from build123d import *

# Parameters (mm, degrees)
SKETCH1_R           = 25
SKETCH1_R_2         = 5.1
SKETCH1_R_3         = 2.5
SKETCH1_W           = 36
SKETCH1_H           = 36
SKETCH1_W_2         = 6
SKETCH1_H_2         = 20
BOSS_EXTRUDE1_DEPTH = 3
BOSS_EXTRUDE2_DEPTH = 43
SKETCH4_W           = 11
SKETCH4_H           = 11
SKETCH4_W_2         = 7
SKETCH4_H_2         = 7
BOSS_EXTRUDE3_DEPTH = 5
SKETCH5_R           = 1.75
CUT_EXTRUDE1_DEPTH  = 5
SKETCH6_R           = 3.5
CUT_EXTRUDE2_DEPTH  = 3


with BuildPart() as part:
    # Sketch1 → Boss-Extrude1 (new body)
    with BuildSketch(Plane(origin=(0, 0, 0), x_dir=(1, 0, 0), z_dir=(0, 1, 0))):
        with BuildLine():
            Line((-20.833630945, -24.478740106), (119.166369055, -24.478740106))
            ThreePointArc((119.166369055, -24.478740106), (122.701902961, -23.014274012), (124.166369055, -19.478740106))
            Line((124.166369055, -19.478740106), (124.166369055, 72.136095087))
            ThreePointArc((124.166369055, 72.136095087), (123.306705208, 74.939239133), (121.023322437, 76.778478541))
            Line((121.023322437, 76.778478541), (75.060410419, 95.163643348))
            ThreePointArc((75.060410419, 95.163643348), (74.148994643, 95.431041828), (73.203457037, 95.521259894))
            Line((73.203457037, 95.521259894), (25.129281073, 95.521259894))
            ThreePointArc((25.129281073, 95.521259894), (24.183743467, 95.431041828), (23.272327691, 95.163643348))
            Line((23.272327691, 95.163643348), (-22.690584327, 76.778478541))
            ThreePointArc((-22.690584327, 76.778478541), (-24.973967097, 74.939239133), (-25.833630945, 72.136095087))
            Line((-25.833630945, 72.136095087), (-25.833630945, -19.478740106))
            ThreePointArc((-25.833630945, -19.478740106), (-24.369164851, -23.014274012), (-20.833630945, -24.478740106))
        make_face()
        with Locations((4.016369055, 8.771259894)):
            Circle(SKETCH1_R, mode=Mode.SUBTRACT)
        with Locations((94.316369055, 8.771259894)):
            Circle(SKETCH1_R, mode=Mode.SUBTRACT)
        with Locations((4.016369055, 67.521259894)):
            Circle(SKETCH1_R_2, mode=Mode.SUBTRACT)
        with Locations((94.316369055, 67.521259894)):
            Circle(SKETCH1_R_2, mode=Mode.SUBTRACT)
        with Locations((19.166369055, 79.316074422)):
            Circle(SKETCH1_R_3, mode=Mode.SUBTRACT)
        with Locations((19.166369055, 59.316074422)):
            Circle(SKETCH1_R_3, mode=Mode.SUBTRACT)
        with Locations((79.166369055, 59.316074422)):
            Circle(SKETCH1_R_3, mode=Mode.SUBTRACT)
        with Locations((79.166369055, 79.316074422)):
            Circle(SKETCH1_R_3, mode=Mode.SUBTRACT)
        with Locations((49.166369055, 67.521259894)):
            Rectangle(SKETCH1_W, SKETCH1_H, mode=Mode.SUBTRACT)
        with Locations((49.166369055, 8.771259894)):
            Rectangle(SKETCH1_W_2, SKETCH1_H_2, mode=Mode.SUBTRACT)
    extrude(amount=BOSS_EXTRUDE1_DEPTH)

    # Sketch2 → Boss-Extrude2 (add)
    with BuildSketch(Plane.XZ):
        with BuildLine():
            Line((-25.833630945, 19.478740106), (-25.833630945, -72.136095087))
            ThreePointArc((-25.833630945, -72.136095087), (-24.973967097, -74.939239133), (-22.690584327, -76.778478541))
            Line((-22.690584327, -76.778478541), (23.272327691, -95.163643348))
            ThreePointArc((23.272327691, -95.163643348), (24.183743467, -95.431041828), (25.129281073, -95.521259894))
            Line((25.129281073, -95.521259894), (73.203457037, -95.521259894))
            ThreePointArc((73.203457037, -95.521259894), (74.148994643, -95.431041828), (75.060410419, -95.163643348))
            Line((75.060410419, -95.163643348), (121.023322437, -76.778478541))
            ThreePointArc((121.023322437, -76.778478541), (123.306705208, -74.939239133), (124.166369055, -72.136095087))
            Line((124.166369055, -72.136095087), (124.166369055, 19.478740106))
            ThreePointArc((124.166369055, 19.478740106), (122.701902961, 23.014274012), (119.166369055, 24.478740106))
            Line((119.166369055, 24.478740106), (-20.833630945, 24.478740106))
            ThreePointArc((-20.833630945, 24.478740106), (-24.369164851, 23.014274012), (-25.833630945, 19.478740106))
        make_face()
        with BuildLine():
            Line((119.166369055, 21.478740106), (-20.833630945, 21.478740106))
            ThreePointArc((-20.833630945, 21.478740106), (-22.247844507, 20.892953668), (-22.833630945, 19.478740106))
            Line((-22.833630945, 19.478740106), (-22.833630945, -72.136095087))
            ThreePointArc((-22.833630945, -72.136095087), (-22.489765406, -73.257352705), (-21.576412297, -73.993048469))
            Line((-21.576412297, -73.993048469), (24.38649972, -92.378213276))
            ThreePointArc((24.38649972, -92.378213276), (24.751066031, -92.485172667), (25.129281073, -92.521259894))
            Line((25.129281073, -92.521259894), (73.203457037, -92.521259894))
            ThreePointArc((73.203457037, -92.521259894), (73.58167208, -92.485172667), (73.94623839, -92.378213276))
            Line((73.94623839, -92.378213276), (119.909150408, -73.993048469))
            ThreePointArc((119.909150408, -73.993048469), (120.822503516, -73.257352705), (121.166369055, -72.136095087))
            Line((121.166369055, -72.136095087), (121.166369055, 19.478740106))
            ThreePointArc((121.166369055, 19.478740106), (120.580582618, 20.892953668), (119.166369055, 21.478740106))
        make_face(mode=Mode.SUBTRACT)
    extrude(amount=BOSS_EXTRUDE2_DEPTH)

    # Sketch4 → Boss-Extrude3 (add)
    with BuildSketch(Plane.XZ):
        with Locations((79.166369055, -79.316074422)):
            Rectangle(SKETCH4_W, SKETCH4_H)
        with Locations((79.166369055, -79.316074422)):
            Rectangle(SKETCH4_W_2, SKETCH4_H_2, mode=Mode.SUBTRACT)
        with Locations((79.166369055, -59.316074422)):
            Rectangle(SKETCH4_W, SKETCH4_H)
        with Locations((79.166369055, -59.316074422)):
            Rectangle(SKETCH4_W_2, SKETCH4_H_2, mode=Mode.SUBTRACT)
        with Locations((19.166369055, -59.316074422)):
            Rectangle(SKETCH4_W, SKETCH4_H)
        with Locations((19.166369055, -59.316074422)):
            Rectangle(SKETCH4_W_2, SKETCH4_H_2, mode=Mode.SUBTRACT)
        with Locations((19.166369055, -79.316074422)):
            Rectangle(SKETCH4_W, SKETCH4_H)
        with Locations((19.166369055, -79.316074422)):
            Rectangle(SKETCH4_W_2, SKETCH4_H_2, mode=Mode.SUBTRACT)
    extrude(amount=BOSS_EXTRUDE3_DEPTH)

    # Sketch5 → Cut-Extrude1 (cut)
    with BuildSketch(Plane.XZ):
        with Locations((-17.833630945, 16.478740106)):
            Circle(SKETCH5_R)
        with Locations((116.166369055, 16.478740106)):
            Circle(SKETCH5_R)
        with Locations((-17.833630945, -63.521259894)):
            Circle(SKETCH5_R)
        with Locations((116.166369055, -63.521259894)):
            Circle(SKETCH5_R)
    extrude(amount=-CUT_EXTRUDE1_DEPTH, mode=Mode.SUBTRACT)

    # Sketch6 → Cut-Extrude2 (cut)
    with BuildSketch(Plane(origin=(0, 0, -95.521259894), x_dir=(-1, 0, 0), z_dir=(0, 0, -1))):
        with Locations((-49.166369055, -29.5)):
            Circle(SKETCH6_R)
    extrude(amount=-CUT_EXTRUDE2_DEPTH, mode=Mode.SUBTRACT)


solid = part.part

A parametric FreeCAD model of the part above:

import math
import FreeCAD as App
import Part
import Sketcher

doc = App.newDocument("Part")
body = doc.addObject("PartDesign::Body", "Body")

# Sketch on XZ plane
sketch1 = doc.addObject("Sketcher::SketchObject", "Sketch")
body.addObject(sketch1)
sketch1.AttachmentSupport = (doc.XZ_Plane, [""])
sketch1.MapMode = "FlatFace"
sketch1.addGeometry([
    Part.LineSegment(App.Vector(-20.8, 24.5, 0), App.Vector(119.2, 24.5, 0)),  # 0
    Part.ArcOfCircle(Part.Circle(App.Vector(119.2, 19.5, 0), App.Vector(0, 0, 1), 5), math.radians(0), math.radians(90)),  # 1
    Part.LineSegment(App.Vector(124.2, 19.5, 0), App.Vector(124.2, -72.1, 0)),  # 2
    Part.ArcOfCircle(Part.Circle(App.Vector(119.2, -72.1, 0), App.Vector(0, 0, 1), 5), math.radians(-68), math.radians(0)),  # 3
    Part.LineSegment(App.Vector(121, -76.8, 0), App.Vector(75.1, -95.2, 0)),  # 4
    Part.ArcOfCircle(Part.Circle(App.Vector(73.2, -90.5, 0), App.Vector(0, 0, 1), 5), math.radians(-90), math.radians(-68)),  # 5
    Part.LineSegment(App.Vector(73.2, -95.5, 0), App.Vector(25.1, -95.5, 0)),  # 6
    Part.ArcOfCircle(Part.Circle(App.Vector(25.1, -90.5, 0), App.Vector(0, 0, 1), 5), math.radians(-112), math.radians(-90)),  # 7
    Part.LineSegment(App.Vector(23.3, -95.2, 0), App.Vector(-22.7, -76.8, 0)),  # 8
    Part.ArcOfCircle(Part.Circle(App.Vector(-20.8, -72.1, 0), App.Vector(0, 0, 1), 5), math.radians(-180), math.radians(-112)),  # 9
    Part.LineSegment(App.Vector(-25.8, -72.1, 0), App.Vector(-25.8, 19.5, 0)),  # 10
    Part.ArcOfCircle(Part.Circle(App.Vector(-20.8, 19.5, 0), App.Vector(0, 0, 1), 5), math.radians(90), math.radians(180)),  # 11
    Part.Circle(App.Vector(4, -8.8, 0), App.Vector(0, 0, 1), 25),  # 12
    Part.LineSegment(App.Vector(52.2, 1.2, 0), App.Vector(46.2, 1.2, 0)),  # 13
    Part.LineSegment(App.Vector(46.2, 1.2, 0), App.Vector(46.2, -18.8, 0)),  # 14
    Part.LineSegment(App.Vector(46.2, -18.8, 0), App.Vector(52.2, -18.8, 0)),  # 15
    Part.LineSegment(App.Vector(52.2, -18.8, 0), App.Vector(52.2, 1.2, 0)),  # 16
    Part.Circle(App.Vector(94.3, -8.8, 0), App.Vector(0, 0, 1), 25),  # 17
    Part.Circle(App.Vector(19.2, -59.3, 0), App.Vector(0, 0, 1), 2.5),  # 18
    Part.Circle(App.Vector(4, -67.5, 0), App.Vector(0, 0, 1), 5.1),  # 19
    Part.Circle(App.Vector(19.2, -79.3, 0), App.Vector(0, 0, 1), 2.5),  # 20
    Part.Circle(App.Vector(79.2, -59.3, 0), App.Vector(0, 0, 1), 2.5),  # 21
    Part.LineSegment(App.Vector(67.2, -49.5, 0), App.Vector(31.2, -49.5, 0)),  # 22
    Part.LineSegment(App.Vector(31.2, -49.5, 0), App.Vector(31.2, -85.5, 0)),  # 23
    Part.LineSegment(App.Vector(31.2, -85.5, 0), App.Vector(67.2, -85.5, 0)),  # 24
    Part.LineSegment(App.Vector(67.2, -85.5, 0), App.Vector(67.2, -49.5, 0)),  # 25
    Part.Circle(App.Vector(79.2, -79.3, 0), App.Vector(0, 0, 1), 2.5),  # 26
    Part.Circle(App.Vector(94.3, -67.5, 0), App.Vector(0, 0, 1), 5.1),  # 27
], False)
sketch1.addConstraint([
    Sketcher.Constraint("Tangent", 0, 2, 1, 2),
    Sketcher.Constraint("Tangent", 1, 1, 2, 1),
    Sketcher.Constraint("Tangent", 2, 2, 3, 2),
    Sketcher.Constraint("Tangent", 3, 1, 4, 1),
    Sketcher.Constraint("Tangent", 4, 2, 5, 2),
    Sketcher.Constraint("Tangent", 5, 1, 6, 1),
    Sketcher.Constraint("Tangent", 6, 2, 7, 2),
    Sketcher.Constraint("Tangent", 7, 1, 8, 1),
    Sketcher.Constraint("Tangent", 8, 2, 9, 2),
    Sketcher.Constraint("Tangent", 9, 1, 10, 1),
    Sketcher.Constraint("Tangent", 10, 2, 11, 2),
    Sketcher.Constraint("Tangent", 11, 1, 0, 1),
    Sketcher.Constraint("Coincident", 13, 2, 14, 1),
    Sketcher.Constraint("Coincident", 14, 2, 15, 1),
    Sketcher.Constraint("Coincident", 15, 2, 16, 1),
    Sketcher.Constraint("Coincident", 16, 2, 13, 1),
    Sketcher.Constraint("Coincident", 22, 2, 23, 1),
    Sketcher.Constraint("Coincident", 23, 2, 24, 1),
    Sketcher.Constraint("Coincident", 24, 2, 25, 1),
    Sketcher.Constraint("Coincident", 25, 2, 22, 1),
    Sketcher.Constraint("Horizontal", 0),
    Sketcher.Constraint("Vertical", 2),
    Sketcher.Constraint("Horizontal", 6),
    Sketcher.Constraint("Vertical", 10),
    Sketcher.Constraint("Horizontal", 13),
    Sketcher.Constraint("Vertical", 14),
    Sketcher.Constraint("Horizontal", 15),
    Sketcher.Constraint("Vertical", 16),
    Sketcher.Constraint("Horizontal", 22),
    Sketcher.Constraint("Vertical", 23),
    Sketcher.Constraint("Horizontal", 24),
    Sketcher.Constraint("Vertical", 25),
    Sketcher.Constraint("Equal", 1, 3),
    Sketcher.Constraint("Equal", 3, 5),
    Sketcher.Constraint("Equal", 5, 7),
    Sketcher.Constraint("Equal", 7, 9),
    Sketcher.Constraint("Equal", 9, 11),
    Sketcher.Constraint("Equal", 12, 17),
    Sketcher.Constraint("Equal", 18, 20),
    Sketcher.Constraint("Equal", 20, 21),
    Sketcher.Constraint("Equal", 21, 26),
    Sketcher.Constraint("Equal", 19, 27),
    Sketcher.Constraint("Horizontal", 3, 3, 9, 3),
    Sketcher.Constraint("Horizontal", 12, 3, 17, 3),
    Sketcher.Constraint("Horizontal", 18, 3, 21, 3),
    Sketcher.Constraint("Horizontal", 20, 3, 26, 3),
    Sketcher.Constraint("Horizontal", 19, 3, 27, 3),
    Sketcher.Constraint("Horizontal", 4, 2, 7, 1),
    Sketcher.Constraint("Vertical", 12, 3, 19, 3),
    Sketcher.Constraint("Vertical", 18, 3, 20, 3),
    Sketcher.Constraint("Vertical", 21, 3, 26, 3),
    Sketcher.Constraint("Vertical", 17, 3, 27, 3),
    Sketcher.Constraint("Equal", 24, 23),
    Sketcher.Constraint("Diameter", 12, 50.0),
    Sketcher.Constraint("Diameter", 18, 5.0),
    Sketcher.Constraint("Radius", 1, 5.0),
    Sketcher.Constraint("Diameter", 19, 10.2),
    Sketcher.Constraint("DistanceX", 0, 1, 0, 2, 140.0),
    Sketcher.Constraint("DistanceX", 13, 2, 13, 1, 6.0),
    Sketcher.Constraint("DistanceX", 22, 2, 22, 1, 36.0),
    Sketcher.Constraint("DistanceY", 14, 2, 14, 1, 20.0),
    Sketcher.Constraint("DistanceY", 5, 3, 1, 3, 110.0),
    Sketcher.Constraint("DistanceX", 9, 3, 18, 3, 40.0),
    Sketcher.Constraint("DistanceY", 7, 3, 19, 3, 23.0),
    Sketcher.Constraint("DistanceY", 20, 3, 18, 3, 20.0),
    Sketcher.Constraint("DistanceX", 21, 3, 3, 3, 40.0),
    Sketcher.Constraint("DistanceY", 12, 3, 13, 2, 10.0),
    Sketcher.Constraint("DistanceX", 18, 3, 13, 2, 27.0),
    Sketcher.Constraint("DistanceX", 18, 3, 22, 2, 12.0),
    Sketcher.Constraint("DistanceY", 19, 3, 22, 2, 18.0),
    Sketcher.Constraint("DistanceX", 12, 3, 17, 3, 90.3),
    Sketcher.Constraint("DistanceX", 11, 3, 12, 3, 24.85),
    Sketcher.Constraint("DistanceY", 12, 3, 11, 3, 28.25),
    Sketcher.Constraint("Distance", 4, 49.503571),
    Sketcher.Constraint("DistanceX", 6, 2, 6, 1, 48.074176),
    Sketcher.Constraint("DistanceX", -1, 1, 1, 3, 119.166369),
    Sketcher.Constraint("DistanceY", -1, 1, 1, 3, 19.47874),
    Sketcher.Constraint("DistanceY", 9, 3, 18, 3, 12.820021),
])
pad1 = doc.addObject("PartDesign::Pad", "Pad")
body.addObject(pad1)
pad1.Profile = sketch1
pad1.Length = 3
pad1.Reversed = True

# Sketch on XZ plane
sketch2 = doc.addObject("Sketcher::SketchObject", "Sketch001")
body.addObject(sketch2)
sketch2.AttachmentSupport = (doc.XZ_Plane, [""])
sketch2.MapMode = "FlatFace"
sketch2.addGeometry([
    Part.LineSegment(App.Vector(-25.8, 19.5, 0), App.Vector(-25.8, -72.1, 0)),  # 0
    Part.ArcOfCircle(Part.Circle(App.Vector(-20.8, -72.1, 0), App.Vector(0, 0, 1), 5), math.radians(-180), math.radians(-112)),  # 1
    Part.LineSegment(App.Vector(-22.7, -76.8, 0), App.Vector(23.3, -95.2, 0)),  # 2
    Part.ArcOfCircle(Part.Circle(App.Vector(25.1, -90.5, 0), App.Vector(0, 0, 1), 5), math.radians(-112), math.radians(-90)),  # 3
    Part.LineSegment(App.Vector(25.1, -95.5, 0), App.Vector(73.2, -95.5, 0)),  # 4
    Part.ArcOfCircle(Part.Circle(App.Vector(73.2, -90.5, 0), App.Vector(0, 0, 1), 5), math.radians(-90), math.radians(-68)),  # 5
    Part.LineSegment(App.Vector(75.1, -95.2, 0), App.Vector(121, -76.8, 0)),  # 6
    Part.ArcOfCircle(Part.Circle(App.Vector(119.2, -72.1, 0), App.Vector(0, 0, 1), 5), math.radians(-68), math.radians(0)),  # 7
    Part.LineSegment(App.Vector(124.2, -72.1, 0), App.Vector(124.2, 19.5, 0)),  # 8
    Part.ArcOfCircle(Part.Circle(App.Vector(119.2, 19.5, 0), App.Vector(0, 0, 1), 5), math.radians(0), math.radians(90)),  # 9
    Part.LineSegment(App.Vector(119.2, 24.5, 0), App.Vector(-20.8, 24.5, 0)),  # 10
    Part.ArcOfCircle(Part.Circle(App.Vector(-20.8, 19.5, 0), App.Vector(0, 0, 1), 5), math.radians(90), math.radians(180)),  # 11
    Part.LineSegment(App.Vector(-20.8, 21.5, 0), App.Vector(119.2, 21.5, 0)),  # 12
    Part.ArcOfCircle(Part.Circle(App.Vector(119.2, 19.5, 0), App.Vector(0, 0, 1), 2), math.radians(0), math.radians(90)),  # 13
    Part.LineSegment(App.Vector(121.2, 19.5, 0), App.Vector(121.2, -72.1, 0)),  # 14
    Part.ArcOfCircle(Part.Circle(App.Vector(119.2, -72.1, 0), App.Vector(0, 0, 1), 2), math.radians(-68), math.radians(0)),  # 15
    Part.LineSegment(App.Vector(119.9, -74, 0), App.Vector(73.9, -92.4, 0)),  # 16
    Part.ArcOfCircle(Part.Circle(App.Vector(73.2, -90.5, 0), App.Vector(0, 0, 1), 2), math.radians(-90), math.radians(-68)),  # 17
    Part.LineSegment(App.Vector(73.2, -92.5, 0), App.Vector(25.1, -92.5, 0)),  # 18
    Part.ArcOfCircle(Part.Circle(App.Vector(25.1, -90.5, 0), App.Vector(0, 0, 1), 2), math.radians(-112), math.radians(-90)),  # 19
    Part.LineSegment(App.Vector(24.4, -92.4, 0), App.Vector(-21.6, -74, 0)),  # 20
    Part.ArcOfCircle(Part.Circle(App.Vector(-20.8, -72.1, 0), App.Vector(0, 0, 1), 2), math.radians(-180), math.radians(-112)),  # 21
    Part.LineSegment(App.Vector(-22.8, -72.1, 0), App.Vector(-22.8, 19.5, 0)),  # 22
    Part.ArcOfCircle(Part.Circle(App.Vector(-20.8, 19.5, 0), App.Vector(0, 0, 1), 2), math.radians(90), math.radians(180)),  # 23
], False)
sketch2.addConstraint([
    Sketcher.Constraint("Tangent", 0, 2, 1, 1),
    Sketcher.Constraint("Tangent", 1, 2, 2, 1),
    Sketcher.Constraint("Tangent", 2, 2, 3, 1),
    Sketcher.Constraint("Tangent", 3, 2, 4, 1),
    Sketcher.Constraint("Tangent", 4, 2, 5, 1),
    Sketcher.Constraint("Tangent", 5, 2, 6, 1),
    Sketcher.Constraint("Tangent", 6, 2, 7, 1),
    Sketcher.Constraint("Tangent", 7, 2, 8, 1),
    Sketcher.Constraint("Tangent", 8, 2, 9, 1),
    Sketcher.Constraint("Tangent", 9, 2, 10, 1),
    Sketcher.Constraint("Tangent", 10, 2, 11, 1),
    Sketcher.Constraint("Tangent", 11, 2, 0, 1),
    Sketcher.Constraint("Tangent", 12, 2, 13, 2),
    Sketcher.Constraint("Tangent", 13, 1, 14, 1),
    Sketcher.Constraint("Tangent", 14, 2, 15, 2),
    Sketcher.Constraint("Tangent", 15, 1, 16, 1),
    Sketcher.Constraint("Tangent", 16, 2, 17, 2),
    Sketcher.Constraint("Tangent", 17, 1, 18, 1),
    Sketcher.Constraint("Tangent", 18, 2, 19, 2),
    Sketcher.Constraint("Tangent", 19, 1, 20, 1),
    Sketcher.Constraint("Tangent", 20, 2, 21, 2),
    Sketcher.Constraint("Tangent", 21, 1, 22, 1),
    Sketcher.Constraint("Tangent", 22, 2, 23, 2),
    Sketcher.Constraint("Tangent", 23, 1, 12, 1),
    Sketcher.Constraint("Vertical", 0),
    Sketcher.Constraint("Horizontal", 4),
    Sketcher.Constraint("Vertical", 8),
    Sketcher.Constraint("Horizontal", 10),
    Sketcher.Constraint("Horizontal", 12),
    Sketcher.Constraint("Vertical", 14),
    Sketcher.Constraint("Horizontal", 18),
    Sketcher.Constraint("Vertical", 22),
    Sketcher.Constraint("Coincident", 13, 3, 9, 3),
    Sketcher.Constraint("Coincident", 15, 3, 7, 3),
    Sketcher.Constraint("Coincident", 17, 3, 5, 3),
    Sketcher.Constraint("Coincident", 19, 3, 3, 3),
    Sketcher.Constraint("Coincident", 21, 3, 1, 3),
    Sketcher.Constraint("Coincident", 23, 3, 11, 3),
    Sketcher.Constraint("Equal", 1, 3),
    Sketcher.Constraint("Equal", 3, 5),
    Sketcher.Constraint("Equal", 5, 7),
    Sketcher.Constraint("Equal", 7, 9),
    Sketcher.Constraint("Equal", 9, 11),
    Sketcher.Constraint("Equal", 15, 17),
    Sketcher.Constraint("Horizontal", 1, 3, 7, 3),
    Sketcher.Constraint("Horizontal", 2, 2, 5, 2),
    Sketcher.Constraint("Radius", 1, 5.0),
    Sketcher.Constraint("Radius", 13, 2.0),
    Sketcher.Constraint("DistanceX", 10, 2, 10, 1, 140.0),
    Sketcher.Constraint("DistanceY", 5, 3, 9, 3, 110.0),
    Sketcher.Constraint("DistanceX", -1, 1, 19, 1, 24.3865),
    Sketcher.Constraint("Distance", 2, 49.503571),
    Sketcher.Constraint("DistanceX", 4, 1, 4, 2, 48.074176),
    Sketcher.Constraint("DistanceY", 3, 3, -1, 1, 90.52126),
])
pad2 = doc.addObject("PartDesign::Pad", "Pad001")
body.addObject(pad2)
pad2.Profile = sketch2
pad2.Length = 43

# Sketch on XZ plane
sketch3 = doc.addObject("Sketcher::SketchObject", "Sketch002")
body.addObject(sketch3)
sketch3.AttachmentSupport = (doc.XZ_Plane, [""])
sketch3.MapMode = "FlatFace"
sketch3.addGeometry([
    Part.LineSegment(App.Vector(74, -74, 0), App.Vector(74, -85, 0)),  # 0
    Part.LineSegment(App.Vector(74, -85, 0), App.Vector(85, -85, 0)),  # 1
    Part.LineSegment(App.Vector(85, -85, 0), App.Vector(85, -74, 0)),  # 2
    Part.LineSegment(App.Vector(85, -74, 0), App.Vector(74, -74, 0)),  # 3
    Part.LineSegment(App.Vector(83, -83, 0), App.Vector(76, -83, 0)),  # 4
    Part.LineSegment(App.Vector(76, -83, 0), App.Vector(76, -76, 0)),  # 5
    Part.LineSegment(App.Vector(76, -76, 0), App.Vector(83, -76, 0)),  # 6
    Part.LineSegment(App.Vector(83, -76, 0), App.Vector(83, -83, 0)),  # 7
    Part.LineSegment(App.Vector(74, -54, 0), App.Vector(74, -65, 0)),  # 8
    Part.LineSegment(App.Vector(74, -65, 0), App.Vector(85, -65, 0)),  # 9
    Part.LineSegment(App.Vector(85, -65, 0), App.Vector(85, -54, 0)),  # 10
    Part.LineSegment(App.Vector(85, -54, 0), App.Vector(74, -54, 0)),  # 11
    Part.LineSegment(App.Vector(83, -63, 0), App.Vector(76, -63, 0)),  # 12
    Part.LineSegment(App.Vector(76, -63, 0), App.Vector(76, -56, 0)),  # 13
    Part.LineSegment(App.Vector(76, -56, 0), App.Vector(83, -56, 0)),  # 14
    Part.LineSegment(App.Vector(83, -56, 0), App.Vector(83, -63, 0)),  # 15
    Part.LineSegment(App.Vector(14, -54, 0), App.Vector(14, -65, 0)),  # 16
    Part.LineSegment(App.Vector(14, -65, 0), App.Vector(25, -65, 0)),  # 17
    Part.LineSegment(App.Vector(25, -65, 0), App.Vector(25, -54, 0)),  # 18
    Part.LineSegment(App.Vector(25, -54, 0), App.Vector(14, -54, 0)),  # 19
    Part.LineSegment(App.Vector(23, -63, 0), App.Vector(16, -63, 0)),  # 20
    Part.LineSegment(App.Vector(16, -63, 0), App.Vector(16, -56, 0)),  # 21
    Part.LineSegment(App.Vector(16, -56, 0), App.Vector(23, -56, 0)),  # 22
    Part.LineSegment(App.Vector(23, -56, 0), App.Vector(23, -63, 0)),  # 23
    Part.LineSegment(App.Vector(14, -74, 0), App.Vector(14, -85, 0)),  # 24
    Part.LineSegment(App.Vector(14, -85, 0), App.Vector(25, -85, 0)),  # 25
    Part.LineSegment(App.Vector(25, -85, 0), App.Vector(25, -74, 0)),  # 26
    Part.LineSegment(App.Vector(25, -74, 0), App.Vector(14, -74, 0)),  # 27
    Part.LineSegment(App.Vector(23, -83, 0), App.Vector(16, -83, 0)),  # 28
    Part.LineSegment(App.Vector(16, -83, 0), App.Vector(16, -76, 0)),  # 29
    Part.LineSegment(App.Vector(16, -76, 0), App.Vector(23, -76, 0)),  # 30
    Part.LineSegment(App.Vector(23, -76, 0), App.Vector(23, -83, 0)),  # 31
], False)
sketch3.addConstraint([
    Sketcher.Constraint("Coincident", 0, 2, 1, 1),
    Sketcher.Constraint("Coincident", 1, 2, 2, 1),
    Sketcher.Constraint("Coincident", 2, 2, 3, 1),
    Sketcher.Constraint("Coincident", 3, 2, 0, 1),
    Sketcher.Constraint("Coincident", 4, 2, 5, 1),
    Sketcher.Constraint("Coincident", 5, 2, 6, 1),
    Sketcher.Constraint("Coincident", 6, 2, 7, 1),
    Sketcher.Constraint("Coincident", 7, 2, 4, 1),
    Sketcher.Constraint("Coincident", 8, 2, 9, 1),
    Sketcher.Constraint("Coincident", 9, 2, 10, 1),
    Sketcher.Constraint("Coincident", 10, 2, 11, 1),
    Sketcher.Constraint("Coincident", 11, 2, 8, 1),
    Sketcher.Constraint("Coincident", 12, 2, 13, 1),
    Sketcher.Constraint("Coincident", 13, 2, 14, 1),
    Sketcher.Constraint("Coincident", 14, 2, 15, 1),
    Sketcher.Constraint("Coincident", 15, 2, 12, 1),
    Sketcher.Constraint("Coincident", 16, 2, 17, 1),
    Sketcher.Constraint("Coincident", 17, 2, 18, 1),
    Sketcher.Constraint("Coincident", 18, 2, 19, 1),
    Sketcher.Constraint("Coincident", 19, 2, 16, 1),
    Sketcher.Constraint("Coincident", 20, 2, 21, 1),
    Sketcher.Constraint("Coincident", 21, 2, 22, 1),
    Sketcher.Constraint("Coincident", 22, 2, 23, 1),
    Sketcher.Constraint("Coincident", 23, 2, 20, 1),
    Sketcher.Constraint("Coincident", 24, 2, 25, 1),
    Sketcher.Constraint("Coincident", 25, 2, 26, 1),
    Sketcher.Constraint("Coincident", 26, 2, 27, 1),
    Sketcher.Constraint("Coincident", 27, 2, 24, 1),
    Sketcher.Constraint("Coincident", 28, 2, 29, 1),
    Sketcher.Constraint("Coincident", 29, 2, 30, 1),
    Sketcher.Constraint("Coincident", 30, 2, 31, 1),
    Sketcher.Constraint("Coincident", 31, 2, 28, 1),
    Sketcher.Constraint("Vertical", 0),
    Sketcher.Constraint("Horizontal", 1),
    Sketcher.Constraint("Vertical", 2),
    Sketcher.Constraint("Horizontal", 3),
    Sketcher.Constraint("Horizontal", 4),
    Sketcher.Constraint("Vertical", 5),
    Sketcher.Constraint("Horizontal", 6),
    Sketcher.Constraint("Vertical", 7),
    Sketcher.Constraint("Vertical", 8),
    Sketcher.Constraint("Horizontal", 9),
    Sketcher.Constraint("Vertical", 10),
    Sketcher.Constraint("Horizontal", 11),
    Sketcher.Constraint("Horizontal", 12),
    Sketcher.Constraint("Vertical", 13),
    Sketcher.Constraint("Horizontal", 14),
    Sketcher.Constraint("Vertical", 15),
    Sketcher.Constraint("Vertical", 16),
    Sketcher.Constraint("Horizontal", 17),
    Sketcher.Constraint("Vertical", 18),
    Sketcher.Constraint("Horizontal", 19),
    Sketcher.Constraint("Horizontal", 20),
    Sketcher.Constraint("Vertical", 21),
    Sketcher.Constraint("Horizontal", 22),
    Sketcher.Constraint("Vertical", 23),
    Sketcher.Constraint("Vertical", 24),
    Sketcher.Constraint("Horizontal", 25),
    Sketcher.Constraint("Vertical", 26),
    Sketcher.Constraint("Horizontal", 27),
    Sketcher.Constraint("Horizontal", 28),
    Sketcher.Constraint("Vertical", 29),
    Sketcher.Constraint("Horizontal", 30),
    Sketcher.Constraint("Vertical", 31),
    Sketcher.Constraint("Horizontal", 9, 2, 16, 2),
    Sketcher.Constraint("Horizontal", 11, 2, 18, 2),
    Sketcher.Constraint("Horizontal", 15, 2, 20, 2),
    Sketcher.Constraint("Horizontal", 14, 2, 21, 2),
    Sketcher.Constraint("Horizontal", 1, 2, 24, 2),
    Sketcher.Constraint("Horizontal", 3, 2, 26, 2),
    Sketcher.Constraint("Horizontal", 7, 2, 28, 2),
    Sketcher.Constraint("Horizontal", 6, 2, 29, 2),
    Sketcher.Constraint("Vertical", 3, 2, 8, 2),
    Sketcher.Constraint("Vertical", 2, 2, 9, 2),
    Sketcher.Constraint("Vertical", 5, 2, 12, 2),
    Sketcher.Constraint("Vertical", 7, 2, 14, 2),
    Sketcher.Constraint("Vertical", 19, 2, 24, 2),
    Sketcher.Constraint("Vertical", 18, 2, 25, 2),
    Sketcher.Constraint("Vertical", 21, 2, 28, 2),
    Sketcher.Constraint("Vertical", 23, 2, 30, 2),
    Sketcher.Constraint("Equal", 11, 17),
    Sketcher.Constraint("Equal", 14, 20),
    Sketcher.Constraint("Equal", 27, 0),
    Sketcher.Constraint("Equal", 30, 5),
    Sketcher.Constraint("Equal", 2, 8),
    Sketcher.Constraint("Equal", 7, 13),
    Sketcher.Constraint("DistanceX", 1, 1, 1, 2, 11.0),
    Sketcher.Constraint("DistanceX", 4, 2, 4, 1, 7.0),
    Sketcher.Constraint("DistanceX", 0, 2, 4, 2, 2.0),
    Sketcher.Constraint("DistanceY", 0, 2, 4, 2, 2.0),
    Sketcher.Constraint("DistanceY", 3, 2, 8, 2, 9.0),
    Sketcher.Constraint("DistanceY", 8, 2, 12, 2, 2.0),
    Sketcher.Constraint("DistanceX", 16, 2, 8, 2, 60.0),
    Sketcher.Constraint("DistanceX", 16, 2, 20, 2, 2.0),
    Sketcher.Constraint("DistanceX", -1, 1, 0, 2, 73.666369),
    Sketcher.Constraint("DistanceY", 0, 2, -1, 1, 84.816074),
])
pad3 = doc.addObject("PartDesign::Pad", "Pad002")
body.addObject(pad3)
pad3.Profile = sketch3
pad3.Length = 5

# Sketch on XZ plane
sketch4 = doc.addObject("Sketcher::SketchObject", "Sketch003")
body.addObject(sketch4)
sketch4.AttachmentSupport = (doc.XZ_Plane, [""])
sketch4.MapMode = "FlatFace"
sketch4.addGeometry([
    Part.Circle(App.Vector(-17.8, 16.5, 0), App.Vector(0, 0, 1), 1.8),
    Part.Circle(App.Vector(116.2, 16.5, 0), App.Vector(0, 0, 1), 1.8),
    Part.Circle(App.Vector(-17.8, -63.5, 0), App.Vector(0, 0, 1), 1.8),
    Part.Circle(App.Vector(116.2, -63.5, 0), App.Vector(0, 0, 1), 1.8),
], False)
sketch4.addConstraint([
    Sketcher.Constraint("Equal", 0, 1),
    Sketcher.Constraint("Equal", 1, 2),
    Sketcher.Constraint("Equal", 2, 3),
    Sketcher.Constraint("Horizontal", 0, 3, 1, 3),
    Sketcher.Constraint("Horizontal", 2, 3, 3, 3),
    Sketcher.Constraint("Vertical", 0, 3, 2, 3),
    Sketcher.Constraint("Vertical", 1, 3, 3, 3),
    Sketcher.Constraint("Diameter", 0, 3.5),
    Sketcher.Constraint("DistanceX", 0, 3, 1, 3, 134.0),
    Sketcher.Constraint("DistanceY", 2, 3, 0, 3, 80.0),
    Sketcher.Constraint("DistanceX", 0, 3, -1, 1, 17.833631),
    Sketcher.Constraint("DistanceY", -1, 1, 0, 3, 16.47874),
])
pocket1 = doc.addObject("PartDesign::Pocket", "Pocket")
body.addObject(pocket1)
pocket1.Profile = sketch4
pocket1.Length = 5

# Sketch on XY plane
sketch5 = doc.addObject("Sketcher::SketchObject", "Sketch004")
body.addObject(sketch5)
sketch5.AttachmentSupport = (doc.XY_Plane, [""])
sketch5.MapMode = "FlatFace"
sketch5.AttachmentOffset = App.Placement(App.Vector(0, 0, -95.52126), App.Rotation())
sketch5.addGeometry(Part.Circle(App.Vector(49.2, -29.5, 0), App.Vector(0, 0, 1), 3.5), False)
sketch5.addConstraint([
    Sketcher.Constraint("Diameter", 0, 7.0),
    Sketcher.Constraint("DistanceY", 0, 3, -1, 1, 29.5),
    Sketcher.Constraint("DistanceX", -1, 1, 0, 3, 49.166369),
])
pocket2 = doc.addObject("PartDesign::Pocket", "Pocket001")
body.addObject(pocket2)
pocket2.Profile = sketch5
pocket2.Length = 3
pocket2.Reversed = True

doc.recompute()
